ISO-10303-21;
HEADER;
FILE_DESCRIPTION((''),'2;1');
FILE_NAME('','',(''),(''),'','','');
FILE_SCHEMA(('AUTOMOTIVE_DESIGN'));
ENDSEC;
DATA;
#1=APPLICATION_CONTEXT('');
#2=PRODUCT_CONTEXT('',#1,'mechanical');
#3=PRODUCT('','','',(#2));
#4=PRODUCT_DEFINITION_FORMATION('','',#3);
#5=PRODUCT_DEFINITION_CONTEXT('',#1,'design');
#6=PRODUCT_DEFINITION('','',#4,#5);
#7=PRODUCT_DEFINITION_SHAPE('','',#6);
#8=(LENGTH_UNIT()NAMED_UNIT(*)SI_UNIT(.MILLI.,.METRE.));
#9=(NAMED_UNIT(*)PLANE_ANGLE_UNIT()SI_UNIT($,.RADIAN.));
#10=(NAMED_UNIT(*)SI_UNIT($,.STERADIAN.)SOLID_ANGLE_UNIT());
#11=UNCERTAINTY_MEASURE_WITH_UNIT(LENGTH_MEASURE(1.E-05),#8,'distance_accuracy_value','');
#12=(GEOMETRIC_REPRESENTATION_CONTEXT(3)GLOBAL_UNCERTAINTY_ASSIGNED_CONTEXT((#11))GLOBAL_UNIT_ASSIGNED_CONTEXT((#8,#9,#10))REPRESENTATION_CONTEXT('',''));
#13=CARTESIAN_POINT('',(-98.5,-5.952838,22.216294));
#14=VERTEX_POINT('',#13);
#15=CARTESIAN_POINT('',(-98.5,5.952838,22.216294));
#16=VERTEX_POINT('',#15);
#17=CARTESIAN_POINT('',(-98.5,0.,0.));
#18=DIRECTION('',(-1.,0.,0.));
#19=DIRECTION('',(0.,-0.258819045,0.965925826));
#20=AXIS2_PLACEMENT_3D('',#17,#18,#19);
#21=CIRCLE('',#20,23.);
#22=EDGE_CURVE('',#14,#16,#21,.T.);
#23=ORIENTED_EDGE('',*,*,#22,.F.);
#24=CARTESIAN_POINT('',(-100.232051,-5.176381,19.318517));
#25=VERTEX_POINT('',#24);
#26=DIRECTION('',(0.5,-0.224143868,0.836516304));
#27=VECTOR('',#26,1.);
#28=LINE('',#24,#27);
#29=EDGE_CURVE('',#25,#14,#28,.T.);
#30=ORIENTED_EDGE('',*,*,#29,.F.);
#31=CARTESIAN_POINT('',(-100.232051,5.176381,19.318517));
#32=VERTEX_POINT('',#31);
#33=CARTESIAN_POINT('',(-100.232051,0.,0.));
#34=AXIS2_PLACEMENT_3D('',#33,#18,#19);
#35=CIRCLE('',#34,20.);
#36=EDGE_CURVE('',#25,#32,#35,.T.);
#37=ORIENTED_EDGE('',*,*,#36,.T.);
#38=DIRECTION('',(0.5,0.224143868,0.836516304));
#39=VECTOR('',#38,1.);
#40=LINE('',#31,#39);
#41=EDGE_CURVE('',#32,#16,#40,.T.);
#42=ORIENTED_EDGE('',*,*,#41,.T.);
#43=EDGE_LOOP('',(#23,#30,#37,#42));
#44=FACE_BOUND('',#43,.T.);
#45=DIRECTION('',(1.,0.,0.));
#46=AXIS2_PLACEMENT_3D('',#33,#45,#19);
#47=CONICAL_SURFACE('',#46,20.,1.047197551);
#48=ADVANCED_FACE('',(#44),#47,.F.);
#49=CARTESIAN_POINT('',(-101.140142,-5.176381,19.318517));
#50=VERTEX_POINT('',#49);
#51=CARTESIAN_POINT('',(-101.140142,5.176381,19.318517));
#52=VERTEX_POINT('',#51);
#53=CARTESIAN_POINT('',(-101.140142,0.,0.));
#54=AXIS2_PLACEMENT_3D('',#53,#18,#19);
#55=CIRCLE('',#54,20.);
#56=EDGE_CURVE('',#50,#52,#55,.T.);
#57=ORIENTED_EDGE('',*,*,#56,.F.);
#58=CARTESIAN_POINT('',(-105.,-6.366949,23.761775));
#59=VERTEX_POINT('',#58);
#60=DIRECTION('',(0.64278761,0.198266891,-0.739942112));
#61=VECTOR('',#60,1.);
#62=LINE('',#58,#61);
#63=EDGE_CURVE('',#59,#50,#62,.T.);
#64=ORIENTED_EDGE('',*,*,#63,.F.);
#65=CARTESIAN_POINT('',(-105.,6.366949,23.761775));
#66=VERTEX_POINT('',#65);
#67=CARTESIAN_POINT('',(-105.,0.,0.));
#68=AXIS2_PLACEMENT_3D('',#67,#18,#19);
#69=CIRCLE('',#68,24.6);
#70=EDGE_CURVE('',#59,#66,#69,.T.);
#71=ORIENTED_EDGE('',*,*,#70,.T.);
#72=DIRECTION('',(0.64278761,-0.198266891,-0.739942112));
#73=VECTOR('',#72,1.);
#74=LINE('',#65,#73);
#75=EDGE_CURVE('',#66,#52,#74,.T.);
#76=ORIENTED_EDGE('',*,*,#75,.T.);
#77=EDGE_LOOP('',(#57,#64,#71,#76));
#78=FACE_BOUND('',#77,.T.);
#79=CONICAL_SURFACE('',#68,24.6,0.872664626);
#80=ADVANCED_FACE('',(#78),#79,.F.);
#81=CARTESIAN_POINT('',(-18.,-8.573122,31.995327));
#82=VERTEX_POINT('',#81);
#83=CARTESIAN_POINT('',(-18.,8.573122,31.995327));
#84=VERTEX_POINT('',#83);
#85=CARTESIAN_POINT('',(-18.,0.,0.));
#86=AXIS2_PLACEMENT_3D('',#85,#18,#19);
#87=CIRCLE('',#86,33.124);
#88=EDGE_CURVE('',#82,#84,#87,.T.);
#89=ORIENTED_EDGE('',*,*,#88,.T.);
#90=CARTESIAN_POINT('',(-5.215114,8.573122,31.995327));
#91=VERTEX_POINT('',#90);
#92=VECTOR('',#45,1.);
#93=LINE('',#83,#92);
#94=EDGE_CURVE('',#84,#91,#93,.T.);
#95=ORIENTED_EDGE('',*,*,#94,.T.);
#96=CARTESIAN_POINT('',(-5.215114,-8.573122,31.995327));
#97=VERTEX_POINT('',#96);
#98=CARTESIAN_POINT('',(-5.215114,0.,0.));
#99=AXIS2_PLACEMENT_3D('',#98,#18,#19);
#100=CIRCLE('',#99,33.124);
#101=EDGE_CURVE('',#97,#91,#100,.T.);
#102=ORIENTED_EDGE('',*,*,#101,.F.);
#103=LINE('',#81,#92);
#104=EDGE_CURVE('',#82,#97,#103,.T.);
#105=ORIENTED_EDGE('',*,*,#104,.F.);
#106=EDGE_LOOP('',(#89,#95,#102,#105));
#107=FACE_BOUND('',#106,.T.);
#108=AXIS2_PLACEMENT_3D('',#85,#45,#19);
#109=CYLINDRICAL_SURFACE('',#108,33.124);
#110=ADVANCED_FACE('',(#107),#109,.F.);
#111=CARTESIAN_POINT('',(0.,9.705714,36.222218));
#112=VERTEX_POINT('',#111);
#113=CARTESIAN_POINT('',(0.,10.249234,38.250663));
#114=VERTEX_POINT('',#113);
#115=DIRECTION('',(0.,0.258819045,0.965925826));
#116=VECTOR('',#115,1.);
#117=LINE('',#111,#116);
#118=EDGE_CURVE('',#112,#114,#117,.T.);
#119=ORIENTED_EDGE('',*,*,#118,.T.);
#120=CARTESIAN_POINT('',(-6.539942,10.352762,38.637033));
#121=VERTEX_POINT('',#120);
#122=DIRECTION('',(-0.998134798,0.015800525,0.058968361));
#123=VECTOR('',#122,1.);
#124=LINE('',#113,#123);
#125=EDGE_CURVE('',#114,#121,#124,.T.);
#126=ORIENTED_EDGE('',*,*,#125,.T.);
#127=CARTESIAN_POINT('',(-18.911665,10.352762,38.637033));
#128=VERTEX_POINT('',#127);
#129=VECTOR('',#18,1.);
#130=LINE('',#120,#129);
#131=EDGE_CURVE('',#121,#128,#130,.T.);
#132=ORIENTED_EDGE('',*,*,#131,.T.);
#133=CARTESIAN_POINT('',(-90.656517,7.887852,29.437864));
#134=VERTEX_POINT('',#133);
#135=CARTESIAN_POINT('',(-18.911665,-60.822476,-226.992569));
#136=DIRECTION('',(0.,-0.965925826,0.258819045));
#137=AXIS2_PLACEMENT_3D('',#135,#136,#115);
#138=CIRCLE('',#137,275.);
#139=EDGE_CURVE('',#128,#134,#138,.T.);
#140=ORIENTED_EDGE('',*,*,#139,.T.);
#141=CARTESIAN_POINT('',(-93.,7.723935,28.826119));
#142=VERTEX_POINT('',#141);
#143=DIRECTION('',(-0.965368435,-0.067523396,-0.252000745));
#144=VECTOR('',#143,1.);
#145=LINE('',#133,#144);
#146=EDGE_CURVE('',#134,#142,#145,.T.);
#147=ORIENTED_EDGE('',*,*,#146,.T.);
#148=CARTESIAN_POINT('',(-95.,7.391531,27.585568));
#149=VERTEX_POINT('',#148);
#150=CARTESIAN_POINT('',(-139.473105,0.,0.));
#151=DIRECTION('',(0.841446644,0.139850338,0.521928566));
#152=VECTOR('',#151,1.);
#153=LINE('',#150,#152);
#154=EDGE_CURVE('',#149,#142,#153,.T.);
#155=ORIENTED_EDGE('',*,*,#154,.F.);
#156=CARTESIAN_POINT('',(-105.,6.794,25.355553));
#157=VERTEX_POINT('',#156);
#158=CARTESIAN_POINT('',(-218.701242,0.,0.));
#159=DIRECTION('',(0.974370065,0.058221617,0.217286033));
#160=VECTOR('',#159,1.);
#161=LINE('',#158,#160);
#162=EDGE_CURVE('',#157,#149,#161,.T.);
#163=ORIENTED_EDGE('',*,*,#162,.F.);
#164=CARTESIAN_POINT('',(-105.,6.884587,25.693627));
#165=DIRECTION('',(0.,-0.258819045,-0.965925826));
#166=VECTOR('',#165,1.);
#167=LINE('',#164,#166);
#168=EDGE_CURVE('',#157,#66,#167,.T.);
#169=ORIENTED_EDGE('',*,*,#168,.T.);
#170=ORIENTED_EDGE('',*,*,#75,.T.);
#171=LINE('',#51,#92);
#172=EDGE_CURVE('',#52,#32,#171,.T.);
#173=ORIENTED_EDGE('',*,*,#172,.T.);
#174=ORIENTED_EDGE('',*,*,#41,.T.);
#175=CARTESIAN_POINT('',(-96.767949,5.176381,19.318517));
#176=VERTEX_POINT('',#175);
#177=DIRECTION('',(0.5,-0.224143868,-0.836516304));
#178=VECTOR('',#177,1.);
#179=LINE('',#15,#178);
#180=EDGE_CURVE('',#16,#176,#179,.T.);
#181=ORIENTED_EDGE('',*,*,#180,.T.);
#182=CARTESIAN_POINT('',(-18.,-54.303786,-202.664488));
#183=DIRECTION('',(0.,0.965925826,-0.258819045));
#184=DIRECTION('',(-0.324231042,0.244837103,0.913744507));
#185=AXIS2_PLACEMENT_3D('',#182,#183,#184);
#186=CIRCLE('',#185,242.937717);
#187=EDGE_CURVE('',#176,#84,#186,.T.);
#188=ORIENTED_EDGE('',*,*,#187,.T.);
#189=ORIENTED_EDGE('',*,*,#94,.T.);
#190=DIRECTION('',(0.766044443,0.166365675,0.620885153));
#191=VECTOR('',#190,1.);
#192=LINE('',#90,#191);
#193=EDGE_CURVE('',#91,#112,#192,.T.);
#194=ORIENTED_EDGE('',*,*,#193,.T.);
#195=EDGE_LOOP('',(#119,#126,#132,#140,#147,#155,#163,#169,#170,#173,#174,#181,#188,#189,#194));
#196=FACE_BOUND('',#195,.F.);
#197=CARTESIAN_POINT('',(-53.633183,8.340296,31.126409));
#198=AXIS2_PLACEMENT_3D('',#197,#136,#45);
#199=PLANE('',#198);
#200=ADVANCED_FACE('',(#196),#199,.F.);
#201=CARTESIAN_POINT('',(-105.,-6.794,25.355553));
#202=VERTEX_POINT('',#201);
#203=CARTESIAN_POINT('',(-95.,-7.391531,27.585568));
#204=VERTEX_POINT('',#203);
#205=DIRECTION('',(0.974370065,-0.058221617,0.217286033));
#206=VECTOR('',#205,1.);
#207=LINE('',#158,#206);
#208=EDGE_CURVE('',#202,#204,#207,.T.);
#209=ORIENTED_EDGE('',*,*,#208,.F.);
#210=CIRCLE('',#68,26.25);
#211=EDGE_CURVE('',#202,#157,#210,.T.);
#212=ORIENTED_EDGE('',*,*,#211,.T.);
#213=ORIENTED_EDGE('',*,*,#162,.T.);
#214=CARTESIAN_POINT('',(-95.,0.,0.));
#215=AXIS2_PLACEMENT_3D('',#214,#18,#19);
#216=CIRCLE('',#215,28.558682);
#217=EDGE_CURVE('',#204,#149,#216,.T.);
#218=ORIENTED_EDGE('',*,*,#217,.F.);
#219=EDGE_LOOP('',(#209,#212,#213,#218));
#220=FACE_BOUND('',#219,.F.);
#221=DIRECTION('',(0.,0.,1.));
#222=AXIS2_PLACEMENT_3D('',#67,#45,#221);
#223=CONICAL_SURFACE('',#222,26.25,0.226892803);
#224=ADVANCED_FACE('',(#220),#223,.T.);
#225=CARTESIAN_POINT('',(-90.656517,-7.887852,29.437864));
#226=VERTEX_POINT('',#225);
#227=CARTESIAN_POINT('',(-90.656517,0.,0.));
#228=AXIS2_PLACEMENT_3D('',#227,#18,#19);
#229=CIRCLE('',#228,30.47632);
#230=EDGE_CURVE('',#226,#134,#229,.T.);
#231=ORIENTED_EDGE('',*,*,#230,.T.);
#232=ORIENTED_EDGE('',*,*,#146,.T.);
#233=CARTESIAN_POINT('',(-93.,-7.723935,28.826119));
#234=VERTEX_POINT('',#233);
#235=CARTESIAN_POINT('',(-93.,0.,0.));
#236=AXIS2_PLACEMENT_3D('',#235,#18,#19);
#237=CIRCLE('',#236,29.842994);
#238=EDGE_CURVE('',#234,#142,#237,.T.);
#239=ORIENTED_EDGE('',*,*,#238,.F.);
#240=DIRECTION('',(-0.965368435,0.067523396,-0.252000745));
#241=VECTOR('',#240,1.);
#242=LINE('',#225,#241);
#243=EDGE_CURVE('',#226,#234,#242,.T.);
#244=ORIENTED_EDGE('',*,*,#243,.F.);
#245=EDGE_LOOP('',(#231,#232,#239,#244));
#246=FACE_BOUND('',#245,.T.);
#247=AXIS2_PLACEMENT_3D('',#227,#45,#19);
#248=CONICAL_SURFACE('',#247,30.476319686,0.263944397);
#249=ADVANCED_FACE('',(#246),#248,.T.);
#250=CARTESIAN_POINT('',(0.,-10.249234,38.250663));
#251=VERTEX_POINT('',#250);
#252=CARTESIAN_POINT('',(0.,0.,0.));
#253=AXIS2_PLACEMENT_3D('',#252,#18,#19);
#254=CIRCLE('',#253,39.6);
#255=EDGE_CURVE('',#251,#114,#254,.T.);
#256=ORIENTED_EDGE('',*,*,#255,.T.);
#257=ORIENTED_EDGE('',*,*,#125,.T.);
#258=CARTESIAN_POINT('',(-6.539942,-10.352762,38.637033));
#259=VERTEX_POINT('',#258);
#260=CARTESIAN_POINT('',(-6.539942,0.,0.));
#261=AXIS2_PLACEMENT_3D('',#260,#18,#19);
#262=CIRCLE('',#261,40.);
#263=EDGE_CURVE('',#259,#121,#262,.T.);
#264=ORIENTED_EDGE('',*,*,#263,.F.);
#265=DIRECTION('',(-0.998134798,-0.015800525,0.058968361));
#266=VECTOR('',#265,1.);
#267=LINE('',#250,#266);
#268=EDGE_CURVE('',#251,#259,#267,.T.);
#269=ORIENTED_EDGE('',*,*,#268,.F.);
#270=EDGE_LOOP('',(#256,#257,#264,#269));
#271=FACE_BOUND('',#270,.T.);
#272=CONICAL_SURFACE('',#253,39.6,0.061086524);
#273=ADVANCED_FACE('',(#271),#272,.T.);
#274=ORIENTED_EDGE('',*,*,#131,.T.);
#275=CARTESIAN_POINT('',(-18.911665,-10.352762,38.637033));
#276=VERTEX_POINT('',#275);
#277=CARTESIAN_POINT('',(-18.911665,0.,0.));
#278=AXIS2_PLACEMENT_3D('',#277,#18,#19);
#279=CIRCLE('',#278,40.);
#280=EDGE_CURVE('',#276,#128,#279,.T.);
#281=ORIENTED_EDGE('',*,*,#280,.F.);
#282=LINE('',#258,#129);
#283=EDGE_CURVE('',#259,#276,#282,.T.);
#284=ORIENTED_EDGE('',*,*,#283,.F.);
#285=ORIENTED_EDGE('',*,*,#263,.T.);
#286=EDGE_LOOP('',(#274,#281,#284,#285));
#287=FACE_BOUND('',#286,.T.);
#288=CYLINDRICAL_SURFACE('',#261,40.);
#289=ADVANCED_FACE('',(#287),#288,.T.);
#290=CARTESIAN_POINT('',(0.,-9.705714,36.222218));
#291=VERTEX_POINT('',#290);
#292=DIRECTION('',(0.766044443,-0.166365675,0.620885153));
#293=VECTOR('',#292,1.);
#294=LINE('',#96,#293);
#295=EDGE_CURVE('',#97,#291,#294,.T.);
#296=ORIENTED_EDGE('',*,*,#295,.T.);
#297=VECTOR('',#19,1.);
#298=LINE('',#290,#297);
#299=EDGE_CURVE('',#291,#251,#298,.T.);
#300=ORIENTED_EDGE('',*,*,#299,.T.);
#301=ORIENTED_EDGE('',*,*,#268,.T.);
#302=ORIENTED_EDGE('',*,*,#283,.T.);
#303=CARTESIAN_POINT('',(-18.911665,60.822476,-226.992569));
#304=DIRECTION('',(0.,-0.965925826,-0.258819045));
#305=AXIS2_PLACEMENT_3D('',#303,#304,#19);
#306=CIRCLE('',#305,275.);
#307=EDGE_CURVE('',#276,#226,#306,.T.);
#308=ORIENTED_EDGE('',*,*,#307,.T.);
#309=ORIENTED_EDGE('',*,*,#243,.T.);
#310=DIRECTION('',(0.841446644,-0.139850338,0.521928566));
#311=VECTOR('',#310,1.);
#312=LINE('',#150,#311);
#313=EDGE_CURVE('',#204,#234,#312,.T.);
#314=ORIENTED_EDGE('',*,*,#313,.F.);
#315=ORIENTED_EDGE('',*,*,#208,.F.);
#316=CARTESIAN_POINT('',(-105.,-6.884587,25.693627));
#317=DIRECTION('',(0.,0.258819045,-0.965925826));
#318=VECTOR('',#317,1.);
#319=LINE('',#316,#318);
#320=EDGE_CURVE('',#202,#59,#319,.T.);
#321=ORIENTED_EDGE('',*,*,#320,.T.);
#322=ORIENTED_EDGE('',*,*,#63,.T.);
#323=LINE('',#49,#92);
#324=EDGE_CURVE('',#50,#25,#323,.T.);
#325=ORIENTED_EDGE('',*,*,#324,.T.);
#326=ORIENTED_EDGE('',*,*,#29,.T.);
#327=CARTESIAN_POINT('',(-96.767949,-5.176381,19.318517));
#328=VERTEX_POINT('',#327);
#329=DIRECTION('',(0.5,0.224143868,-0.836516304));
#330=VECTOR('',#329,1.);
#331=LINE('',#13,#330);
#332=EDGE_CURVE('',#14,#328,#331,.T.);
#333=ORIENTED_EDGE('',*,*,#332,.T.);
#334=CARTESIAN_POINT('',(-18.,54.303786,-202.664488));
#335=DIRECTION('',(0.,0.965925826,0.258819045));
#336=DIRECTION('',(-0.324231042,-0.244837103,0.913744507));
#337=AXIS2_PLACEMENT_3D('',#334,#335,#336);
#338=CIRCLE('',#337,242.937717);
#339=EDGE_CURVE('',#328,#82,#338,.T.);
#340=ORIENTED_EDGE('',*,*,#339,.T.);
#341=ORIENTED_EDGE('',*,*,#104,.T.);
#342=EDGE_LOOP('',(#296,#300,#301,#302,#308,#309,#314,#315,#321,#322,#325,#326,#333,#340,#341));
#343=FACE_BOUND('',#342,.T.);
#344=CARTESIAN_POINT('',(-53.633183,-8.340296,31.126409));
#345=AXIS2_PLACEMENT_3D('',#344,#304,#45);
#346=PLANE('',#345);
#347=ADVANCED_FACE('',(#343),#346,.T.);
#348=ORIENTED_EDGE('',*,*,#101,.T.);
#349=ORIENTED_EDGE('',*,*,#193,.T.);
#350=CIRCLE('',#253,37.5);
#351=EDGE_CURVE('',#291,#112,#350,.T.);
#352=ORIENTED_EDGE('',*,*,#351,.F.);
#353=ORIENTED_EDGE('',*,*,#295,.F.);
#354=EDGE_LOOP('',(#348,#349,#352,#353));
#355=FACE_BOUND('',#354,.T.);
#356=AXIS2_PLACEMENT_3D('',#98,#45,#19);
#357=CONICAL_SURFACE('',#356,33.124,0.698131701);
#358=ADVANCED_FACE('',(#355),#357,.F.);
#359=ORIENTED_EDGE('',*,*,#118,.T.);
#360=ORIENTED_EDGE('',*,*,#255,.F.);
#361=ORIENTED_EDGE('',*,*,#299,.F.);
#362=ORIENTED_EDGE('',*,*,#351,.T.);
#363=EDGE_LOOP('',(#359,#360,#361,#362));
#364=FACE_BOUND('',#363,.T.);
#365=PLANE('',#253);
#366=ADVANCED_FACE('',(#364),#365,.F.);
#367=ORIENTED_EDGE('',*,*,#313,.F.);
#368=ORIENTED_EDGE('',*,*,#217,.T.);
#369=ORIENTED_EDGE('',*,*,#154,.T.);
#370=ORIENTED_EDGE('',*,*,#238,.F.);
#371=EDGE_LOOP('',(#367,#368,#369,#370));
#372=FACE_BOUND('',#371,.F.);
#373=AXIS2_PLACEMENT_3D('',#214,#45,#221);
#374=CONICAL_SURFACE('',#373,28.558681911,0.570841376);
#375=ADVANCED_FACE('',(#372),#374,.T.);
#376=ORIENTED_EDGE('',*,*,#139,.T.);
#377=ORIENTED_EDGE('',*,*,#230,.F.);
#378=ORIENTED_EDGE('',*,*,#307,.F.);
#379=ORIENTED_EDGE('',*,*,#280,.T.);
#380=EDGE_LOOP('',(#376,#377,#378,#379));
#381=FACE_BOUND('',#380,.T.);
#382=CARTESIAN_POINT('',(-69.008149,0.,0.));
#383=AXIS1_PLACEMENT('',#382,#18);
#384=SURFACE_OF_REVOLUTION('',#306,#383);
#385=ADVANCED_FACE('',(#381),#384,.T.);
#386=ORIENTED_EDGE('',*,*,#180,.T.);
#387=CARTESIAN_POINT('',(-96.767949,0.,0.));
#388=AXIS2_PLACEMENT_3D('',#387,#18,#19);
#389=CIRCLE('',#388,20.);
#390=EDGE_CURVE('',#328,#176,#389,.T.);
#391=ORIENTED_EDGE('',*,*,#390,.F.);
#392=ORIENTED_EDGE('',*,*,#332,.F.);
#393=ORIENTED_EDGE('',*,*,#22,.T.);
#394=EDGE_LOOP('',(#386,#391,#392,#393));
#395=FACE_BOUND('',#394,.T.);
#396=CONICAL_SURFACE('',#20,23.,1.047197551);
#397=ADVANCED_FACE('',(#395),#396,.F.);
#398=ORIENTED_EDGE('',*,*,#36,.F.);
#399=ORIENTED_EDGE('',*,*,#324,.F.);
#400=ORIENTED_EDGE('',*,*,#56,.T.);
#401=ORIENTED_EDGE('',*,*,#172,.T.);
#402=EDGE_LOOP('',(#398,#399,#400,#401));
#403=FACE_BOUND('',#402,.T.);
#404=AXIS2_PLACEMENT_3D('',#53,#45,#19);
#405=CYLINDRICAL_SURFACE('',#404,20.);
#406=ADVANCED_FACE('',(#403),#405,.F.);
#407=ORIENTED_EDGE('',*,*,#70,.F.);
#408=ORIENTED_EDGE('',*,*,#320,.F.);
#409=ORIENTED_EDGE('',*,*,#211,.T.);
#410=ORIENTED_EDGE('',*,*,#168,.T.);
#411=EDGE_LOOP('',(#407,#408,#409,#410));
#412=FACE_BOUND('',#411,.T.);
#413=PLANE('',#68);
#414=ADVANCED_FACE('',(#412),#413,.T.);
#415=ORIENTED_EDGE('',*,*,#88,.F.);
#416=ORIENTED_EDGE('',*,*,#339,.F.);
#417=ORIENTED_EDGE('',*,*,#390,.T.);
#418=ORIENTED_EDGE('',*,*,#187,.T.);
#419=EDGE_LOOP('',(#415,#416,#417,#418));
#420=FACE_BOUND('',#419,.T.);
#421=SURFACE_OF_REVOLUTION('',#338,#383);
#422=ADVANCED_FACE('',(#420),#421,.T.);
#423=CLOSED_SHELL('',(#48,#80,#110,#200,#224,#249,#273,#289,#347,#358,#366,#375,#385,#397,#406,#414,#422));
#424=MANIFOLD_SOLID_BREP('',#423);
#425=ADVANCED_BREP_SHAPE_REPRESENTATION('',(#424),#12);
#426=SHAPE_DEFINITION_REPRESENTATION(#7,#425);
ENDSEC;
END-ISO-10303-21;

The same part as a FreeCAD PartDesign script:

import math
import FreeCAD as App
import Part
import Sketcher

V = App.Vector
Q = App.Units.Quantity

doc = App.newDocument("Part")
body = doc.addObject("PartDesign::Body", "Body")

# Sketch on an angled plane
sketch1 = body.newObject("Sketcher::SketchObject", "Sketch")
sketch1.Placement = App.Placement(V(0, 0, 0), App.Rotation(V(1, 0, 0), V(0, -0.258819045, 0.965925826), V(0, -0.965925826, -0.258819045), "ZXY"))
sketch1.addGeometry([
    Part.LineSegment(V(-18, 33.1, 0), V(-5.2, 33.1, 0)),  # 0
    Part.LineSegment(V(-5.2, 33.1, 0), V(0, 37.5, 0)),  # 1
    Part.LineSegment(V(0, 37.5, 0), V(0, 39.6, 0)),  # 2
    Part.LineSegment(V(0, 39.6, 0), V(-6.5, 40, 0)),  # 3
    Part.LineSegment(V(-6.5, 40, 0), V(-18.9, 40, 0)),  # 4
    Part.ArcOfCircle(Part.Circle(V(-18.9, -235, 0), V(0, 0, 1), 275), math.radians(90), math.radians(105.12)),  # 5
    Part.LineSegment(V(-90.7, 30.5, 0), V(-105, 26.6, 0)),  # 6
    Part.LineSegment(V(-105, 26.6, 0), V(-105, 24.6, 0)),  # 7
    Part.LineSegment(V(-105, 24.6, 0), V(-101.1, 20, 0)),  # 8
    Part.LineSegment(V(-101.1, 20, 0), V(-100.2, 20, 0)),  # 9
    Part.LineSegment(V(-100.2, 20, 0), V(-98.5, 23, 0)),  # 10
    Part.LineSegment(V(-98.5, 23, 0), V(-96.8, 20, 0)),  # 11
    Part.ArcOfCircle(Part.Circle(V(-18, -209.8, 0), V(0, 0, 1), 242.9), math.radians(90), math.radians(108.92)),  # 12
], False)
sketch1.addConstraint([
    Sketcher.Constraint("Coincident", 0, 2, 1, 1),
    Sketcher.Constraint("Coincident", 1, 2, 2, 1),
    Sketcher.Constraint("Coincident", 2, 2, 3, 1),
    Sketcher.Constraint("Coincident", 3, 2, 4, 1),
    Sketcher.Constraint("Tangent", 4, 2, 5, 1),
    Sketcher.Constraint("Tangent", 5, 2, 6, 1),
    Sketcher.Constraint("Coincident", 6, 2, 7, 1),
    Sketcher.Constraint("Coincident", 7, 2, 8, 1),
    Sketcher.Constraint("Coincident", 8, 2, 9, 1),
    Sketcher.Constraint("Coincident", 9, 2, 10, 1),
    Sketcher.Constraint("Coincident", 10, 2, 11, 1),
    Sketcher.Constraint("Coincident", 11, 2, 12, 2),
    Sketcher.Constraint("Tangent", 12, 1, 0, 1),
    Sketcher.Constraint("Horizontal", 0),
    Sketcher.Constraint("Vertical", 2),
    Sketcher.Constraint("Horizontal", 4),
    Sketcher.Constraint("Vertical", 7),
    Sketcher.Constraint("Horizontal", 9),
    Sketcher.Constraint("PointOnObject", 1, 2, -2),
    Sketcher.Constraint("Perpendicular", 1, 8),
    Sketcher.Constraint("Horizontal", 9, 2, 11, 2),
    Sketcher.Constraint("Equal", 10, 11),
    Sketcher.Constraint("Radius", 5, Q("275 mm")),
    Sketcher.Constraint("DistanceY", 7, 2, 7, 1, Q("2 mm")),
    Sketcher.Constraint("Angle", 1, Q("40 deg")),
    Sketcher.Constraint("Angle", 10, Q("60 deg")),
    Sketcher.Constraint("DistanceY", 2, 1, 2, 2, Q("2.1 mm")),
    Sketcher.Constraint("DistanceY", 5, 3, -1, 1, Q("235 mm")),
    Sketcher.Constraint("DistanceX", 12, 3, -1, 1, Q("18 mm")),
    Sketcher.Constraint("DistanceX", 6, 2, -1, 1, Q("105 mm")),
    Sketcher.Constraint("DistanceY", -1, 1, 8, 2, Q("20 mm")),
    Sketcher.Constraint("DistanceY", -1, 1, 10, 2, Q("23 mm")),
    Sketcher.Constraint("Angle", 3, Q("176.5 deg")),
    Sketcher.Constraint("DistanceY", -1, 1, 1, 2, Q("37.5 mm")),
    Sketcher.Constraint("DistanceY", -1, 1, 6, 2, Q("26.6 mm")),
    Sketcher.Constraint("DistanceX", 10, 2, -1, 1, Q("98.5 mm")),
    Sketcher.Constraint("DistanceY", -1, 1, 0, 2, Q("33.124 mm")),
    Sketcher.Constraint("Distance", 6, Q("14.858041 mm")),
])
revolution = body.newObject("PartDesign::Revolution", "Revolution")
revolution.Profile = sketch1
revolution.ReferenceAxis = (sketch1, ["H_Axis"])
revolution.Angle = 30
revolution.Reversed = True

# Sketch on XZ plane
sketch2 = body.newObject("Sketcher::SketchObject", "Sketch001")
sketch2.AttachmentSupport = (doc.getObject("XZ_Plane"), [""])
sketch2.MapMode = "FlatFace"
sketch2.addGeometry([
    Part.LineSegment(V(-105, 26.6, 0), V(-105, 26.25, 0)),
    Part.LineSegment(V(-105, 26.25, 0), V(-95, 28.56, 0)),
    Part.LineSegment(V(-95, 28.56, 0), V(-93, 29.84, 0)),
    Part.LineSegment(V(-93, 29.84, 0), V(-105, 26.6, 0)),
], False)
sketch2.addConstraint([
    Sketcher.Constraint("Coincident", 0, 2, 1, 1),
    Sketcher.Constraint("Coincident", 1, 2, 2, 1),
    Sketcher.Constraint("Coincident", 2, 2, 3, 1),
    Sketcher.Constraint("Coincident", 3, 2, 0, 1),
    Sketcher.Constraint("Vertical", 0),
    Sketcher.Constraint("Angle", 1, Q("13 deg")),
    Sketcher.Constraint("DistanceX", 0, 2, -1, 1, Q("105 mm")),
    Sketcher.Constraint("DistanceX", 1, 2, -1, 1, Q("95 mm")),
    Sketcher.Constraint("DistanceX", 2, 2, -1, 1, Q("93 mm")),
    Sketcher.Constraint("DistanceY", 0, 2, 0, 1, Q("0.35 mm")),
    Sketcher.Constraint("DistanceY", -1, 1, 3, 2, Q("26.6 mm")),
    Sketcher.Constraint("Distance", 2, Q("2.376859 mm")),
])
groove = body.newObject("PartDesign::Groove", "Groove")
groove.Profile = sketch2
groove.ReferenceAxis = (sketch2, ["H_Axis"])
groove.Angle = 360

doc.recompute()
